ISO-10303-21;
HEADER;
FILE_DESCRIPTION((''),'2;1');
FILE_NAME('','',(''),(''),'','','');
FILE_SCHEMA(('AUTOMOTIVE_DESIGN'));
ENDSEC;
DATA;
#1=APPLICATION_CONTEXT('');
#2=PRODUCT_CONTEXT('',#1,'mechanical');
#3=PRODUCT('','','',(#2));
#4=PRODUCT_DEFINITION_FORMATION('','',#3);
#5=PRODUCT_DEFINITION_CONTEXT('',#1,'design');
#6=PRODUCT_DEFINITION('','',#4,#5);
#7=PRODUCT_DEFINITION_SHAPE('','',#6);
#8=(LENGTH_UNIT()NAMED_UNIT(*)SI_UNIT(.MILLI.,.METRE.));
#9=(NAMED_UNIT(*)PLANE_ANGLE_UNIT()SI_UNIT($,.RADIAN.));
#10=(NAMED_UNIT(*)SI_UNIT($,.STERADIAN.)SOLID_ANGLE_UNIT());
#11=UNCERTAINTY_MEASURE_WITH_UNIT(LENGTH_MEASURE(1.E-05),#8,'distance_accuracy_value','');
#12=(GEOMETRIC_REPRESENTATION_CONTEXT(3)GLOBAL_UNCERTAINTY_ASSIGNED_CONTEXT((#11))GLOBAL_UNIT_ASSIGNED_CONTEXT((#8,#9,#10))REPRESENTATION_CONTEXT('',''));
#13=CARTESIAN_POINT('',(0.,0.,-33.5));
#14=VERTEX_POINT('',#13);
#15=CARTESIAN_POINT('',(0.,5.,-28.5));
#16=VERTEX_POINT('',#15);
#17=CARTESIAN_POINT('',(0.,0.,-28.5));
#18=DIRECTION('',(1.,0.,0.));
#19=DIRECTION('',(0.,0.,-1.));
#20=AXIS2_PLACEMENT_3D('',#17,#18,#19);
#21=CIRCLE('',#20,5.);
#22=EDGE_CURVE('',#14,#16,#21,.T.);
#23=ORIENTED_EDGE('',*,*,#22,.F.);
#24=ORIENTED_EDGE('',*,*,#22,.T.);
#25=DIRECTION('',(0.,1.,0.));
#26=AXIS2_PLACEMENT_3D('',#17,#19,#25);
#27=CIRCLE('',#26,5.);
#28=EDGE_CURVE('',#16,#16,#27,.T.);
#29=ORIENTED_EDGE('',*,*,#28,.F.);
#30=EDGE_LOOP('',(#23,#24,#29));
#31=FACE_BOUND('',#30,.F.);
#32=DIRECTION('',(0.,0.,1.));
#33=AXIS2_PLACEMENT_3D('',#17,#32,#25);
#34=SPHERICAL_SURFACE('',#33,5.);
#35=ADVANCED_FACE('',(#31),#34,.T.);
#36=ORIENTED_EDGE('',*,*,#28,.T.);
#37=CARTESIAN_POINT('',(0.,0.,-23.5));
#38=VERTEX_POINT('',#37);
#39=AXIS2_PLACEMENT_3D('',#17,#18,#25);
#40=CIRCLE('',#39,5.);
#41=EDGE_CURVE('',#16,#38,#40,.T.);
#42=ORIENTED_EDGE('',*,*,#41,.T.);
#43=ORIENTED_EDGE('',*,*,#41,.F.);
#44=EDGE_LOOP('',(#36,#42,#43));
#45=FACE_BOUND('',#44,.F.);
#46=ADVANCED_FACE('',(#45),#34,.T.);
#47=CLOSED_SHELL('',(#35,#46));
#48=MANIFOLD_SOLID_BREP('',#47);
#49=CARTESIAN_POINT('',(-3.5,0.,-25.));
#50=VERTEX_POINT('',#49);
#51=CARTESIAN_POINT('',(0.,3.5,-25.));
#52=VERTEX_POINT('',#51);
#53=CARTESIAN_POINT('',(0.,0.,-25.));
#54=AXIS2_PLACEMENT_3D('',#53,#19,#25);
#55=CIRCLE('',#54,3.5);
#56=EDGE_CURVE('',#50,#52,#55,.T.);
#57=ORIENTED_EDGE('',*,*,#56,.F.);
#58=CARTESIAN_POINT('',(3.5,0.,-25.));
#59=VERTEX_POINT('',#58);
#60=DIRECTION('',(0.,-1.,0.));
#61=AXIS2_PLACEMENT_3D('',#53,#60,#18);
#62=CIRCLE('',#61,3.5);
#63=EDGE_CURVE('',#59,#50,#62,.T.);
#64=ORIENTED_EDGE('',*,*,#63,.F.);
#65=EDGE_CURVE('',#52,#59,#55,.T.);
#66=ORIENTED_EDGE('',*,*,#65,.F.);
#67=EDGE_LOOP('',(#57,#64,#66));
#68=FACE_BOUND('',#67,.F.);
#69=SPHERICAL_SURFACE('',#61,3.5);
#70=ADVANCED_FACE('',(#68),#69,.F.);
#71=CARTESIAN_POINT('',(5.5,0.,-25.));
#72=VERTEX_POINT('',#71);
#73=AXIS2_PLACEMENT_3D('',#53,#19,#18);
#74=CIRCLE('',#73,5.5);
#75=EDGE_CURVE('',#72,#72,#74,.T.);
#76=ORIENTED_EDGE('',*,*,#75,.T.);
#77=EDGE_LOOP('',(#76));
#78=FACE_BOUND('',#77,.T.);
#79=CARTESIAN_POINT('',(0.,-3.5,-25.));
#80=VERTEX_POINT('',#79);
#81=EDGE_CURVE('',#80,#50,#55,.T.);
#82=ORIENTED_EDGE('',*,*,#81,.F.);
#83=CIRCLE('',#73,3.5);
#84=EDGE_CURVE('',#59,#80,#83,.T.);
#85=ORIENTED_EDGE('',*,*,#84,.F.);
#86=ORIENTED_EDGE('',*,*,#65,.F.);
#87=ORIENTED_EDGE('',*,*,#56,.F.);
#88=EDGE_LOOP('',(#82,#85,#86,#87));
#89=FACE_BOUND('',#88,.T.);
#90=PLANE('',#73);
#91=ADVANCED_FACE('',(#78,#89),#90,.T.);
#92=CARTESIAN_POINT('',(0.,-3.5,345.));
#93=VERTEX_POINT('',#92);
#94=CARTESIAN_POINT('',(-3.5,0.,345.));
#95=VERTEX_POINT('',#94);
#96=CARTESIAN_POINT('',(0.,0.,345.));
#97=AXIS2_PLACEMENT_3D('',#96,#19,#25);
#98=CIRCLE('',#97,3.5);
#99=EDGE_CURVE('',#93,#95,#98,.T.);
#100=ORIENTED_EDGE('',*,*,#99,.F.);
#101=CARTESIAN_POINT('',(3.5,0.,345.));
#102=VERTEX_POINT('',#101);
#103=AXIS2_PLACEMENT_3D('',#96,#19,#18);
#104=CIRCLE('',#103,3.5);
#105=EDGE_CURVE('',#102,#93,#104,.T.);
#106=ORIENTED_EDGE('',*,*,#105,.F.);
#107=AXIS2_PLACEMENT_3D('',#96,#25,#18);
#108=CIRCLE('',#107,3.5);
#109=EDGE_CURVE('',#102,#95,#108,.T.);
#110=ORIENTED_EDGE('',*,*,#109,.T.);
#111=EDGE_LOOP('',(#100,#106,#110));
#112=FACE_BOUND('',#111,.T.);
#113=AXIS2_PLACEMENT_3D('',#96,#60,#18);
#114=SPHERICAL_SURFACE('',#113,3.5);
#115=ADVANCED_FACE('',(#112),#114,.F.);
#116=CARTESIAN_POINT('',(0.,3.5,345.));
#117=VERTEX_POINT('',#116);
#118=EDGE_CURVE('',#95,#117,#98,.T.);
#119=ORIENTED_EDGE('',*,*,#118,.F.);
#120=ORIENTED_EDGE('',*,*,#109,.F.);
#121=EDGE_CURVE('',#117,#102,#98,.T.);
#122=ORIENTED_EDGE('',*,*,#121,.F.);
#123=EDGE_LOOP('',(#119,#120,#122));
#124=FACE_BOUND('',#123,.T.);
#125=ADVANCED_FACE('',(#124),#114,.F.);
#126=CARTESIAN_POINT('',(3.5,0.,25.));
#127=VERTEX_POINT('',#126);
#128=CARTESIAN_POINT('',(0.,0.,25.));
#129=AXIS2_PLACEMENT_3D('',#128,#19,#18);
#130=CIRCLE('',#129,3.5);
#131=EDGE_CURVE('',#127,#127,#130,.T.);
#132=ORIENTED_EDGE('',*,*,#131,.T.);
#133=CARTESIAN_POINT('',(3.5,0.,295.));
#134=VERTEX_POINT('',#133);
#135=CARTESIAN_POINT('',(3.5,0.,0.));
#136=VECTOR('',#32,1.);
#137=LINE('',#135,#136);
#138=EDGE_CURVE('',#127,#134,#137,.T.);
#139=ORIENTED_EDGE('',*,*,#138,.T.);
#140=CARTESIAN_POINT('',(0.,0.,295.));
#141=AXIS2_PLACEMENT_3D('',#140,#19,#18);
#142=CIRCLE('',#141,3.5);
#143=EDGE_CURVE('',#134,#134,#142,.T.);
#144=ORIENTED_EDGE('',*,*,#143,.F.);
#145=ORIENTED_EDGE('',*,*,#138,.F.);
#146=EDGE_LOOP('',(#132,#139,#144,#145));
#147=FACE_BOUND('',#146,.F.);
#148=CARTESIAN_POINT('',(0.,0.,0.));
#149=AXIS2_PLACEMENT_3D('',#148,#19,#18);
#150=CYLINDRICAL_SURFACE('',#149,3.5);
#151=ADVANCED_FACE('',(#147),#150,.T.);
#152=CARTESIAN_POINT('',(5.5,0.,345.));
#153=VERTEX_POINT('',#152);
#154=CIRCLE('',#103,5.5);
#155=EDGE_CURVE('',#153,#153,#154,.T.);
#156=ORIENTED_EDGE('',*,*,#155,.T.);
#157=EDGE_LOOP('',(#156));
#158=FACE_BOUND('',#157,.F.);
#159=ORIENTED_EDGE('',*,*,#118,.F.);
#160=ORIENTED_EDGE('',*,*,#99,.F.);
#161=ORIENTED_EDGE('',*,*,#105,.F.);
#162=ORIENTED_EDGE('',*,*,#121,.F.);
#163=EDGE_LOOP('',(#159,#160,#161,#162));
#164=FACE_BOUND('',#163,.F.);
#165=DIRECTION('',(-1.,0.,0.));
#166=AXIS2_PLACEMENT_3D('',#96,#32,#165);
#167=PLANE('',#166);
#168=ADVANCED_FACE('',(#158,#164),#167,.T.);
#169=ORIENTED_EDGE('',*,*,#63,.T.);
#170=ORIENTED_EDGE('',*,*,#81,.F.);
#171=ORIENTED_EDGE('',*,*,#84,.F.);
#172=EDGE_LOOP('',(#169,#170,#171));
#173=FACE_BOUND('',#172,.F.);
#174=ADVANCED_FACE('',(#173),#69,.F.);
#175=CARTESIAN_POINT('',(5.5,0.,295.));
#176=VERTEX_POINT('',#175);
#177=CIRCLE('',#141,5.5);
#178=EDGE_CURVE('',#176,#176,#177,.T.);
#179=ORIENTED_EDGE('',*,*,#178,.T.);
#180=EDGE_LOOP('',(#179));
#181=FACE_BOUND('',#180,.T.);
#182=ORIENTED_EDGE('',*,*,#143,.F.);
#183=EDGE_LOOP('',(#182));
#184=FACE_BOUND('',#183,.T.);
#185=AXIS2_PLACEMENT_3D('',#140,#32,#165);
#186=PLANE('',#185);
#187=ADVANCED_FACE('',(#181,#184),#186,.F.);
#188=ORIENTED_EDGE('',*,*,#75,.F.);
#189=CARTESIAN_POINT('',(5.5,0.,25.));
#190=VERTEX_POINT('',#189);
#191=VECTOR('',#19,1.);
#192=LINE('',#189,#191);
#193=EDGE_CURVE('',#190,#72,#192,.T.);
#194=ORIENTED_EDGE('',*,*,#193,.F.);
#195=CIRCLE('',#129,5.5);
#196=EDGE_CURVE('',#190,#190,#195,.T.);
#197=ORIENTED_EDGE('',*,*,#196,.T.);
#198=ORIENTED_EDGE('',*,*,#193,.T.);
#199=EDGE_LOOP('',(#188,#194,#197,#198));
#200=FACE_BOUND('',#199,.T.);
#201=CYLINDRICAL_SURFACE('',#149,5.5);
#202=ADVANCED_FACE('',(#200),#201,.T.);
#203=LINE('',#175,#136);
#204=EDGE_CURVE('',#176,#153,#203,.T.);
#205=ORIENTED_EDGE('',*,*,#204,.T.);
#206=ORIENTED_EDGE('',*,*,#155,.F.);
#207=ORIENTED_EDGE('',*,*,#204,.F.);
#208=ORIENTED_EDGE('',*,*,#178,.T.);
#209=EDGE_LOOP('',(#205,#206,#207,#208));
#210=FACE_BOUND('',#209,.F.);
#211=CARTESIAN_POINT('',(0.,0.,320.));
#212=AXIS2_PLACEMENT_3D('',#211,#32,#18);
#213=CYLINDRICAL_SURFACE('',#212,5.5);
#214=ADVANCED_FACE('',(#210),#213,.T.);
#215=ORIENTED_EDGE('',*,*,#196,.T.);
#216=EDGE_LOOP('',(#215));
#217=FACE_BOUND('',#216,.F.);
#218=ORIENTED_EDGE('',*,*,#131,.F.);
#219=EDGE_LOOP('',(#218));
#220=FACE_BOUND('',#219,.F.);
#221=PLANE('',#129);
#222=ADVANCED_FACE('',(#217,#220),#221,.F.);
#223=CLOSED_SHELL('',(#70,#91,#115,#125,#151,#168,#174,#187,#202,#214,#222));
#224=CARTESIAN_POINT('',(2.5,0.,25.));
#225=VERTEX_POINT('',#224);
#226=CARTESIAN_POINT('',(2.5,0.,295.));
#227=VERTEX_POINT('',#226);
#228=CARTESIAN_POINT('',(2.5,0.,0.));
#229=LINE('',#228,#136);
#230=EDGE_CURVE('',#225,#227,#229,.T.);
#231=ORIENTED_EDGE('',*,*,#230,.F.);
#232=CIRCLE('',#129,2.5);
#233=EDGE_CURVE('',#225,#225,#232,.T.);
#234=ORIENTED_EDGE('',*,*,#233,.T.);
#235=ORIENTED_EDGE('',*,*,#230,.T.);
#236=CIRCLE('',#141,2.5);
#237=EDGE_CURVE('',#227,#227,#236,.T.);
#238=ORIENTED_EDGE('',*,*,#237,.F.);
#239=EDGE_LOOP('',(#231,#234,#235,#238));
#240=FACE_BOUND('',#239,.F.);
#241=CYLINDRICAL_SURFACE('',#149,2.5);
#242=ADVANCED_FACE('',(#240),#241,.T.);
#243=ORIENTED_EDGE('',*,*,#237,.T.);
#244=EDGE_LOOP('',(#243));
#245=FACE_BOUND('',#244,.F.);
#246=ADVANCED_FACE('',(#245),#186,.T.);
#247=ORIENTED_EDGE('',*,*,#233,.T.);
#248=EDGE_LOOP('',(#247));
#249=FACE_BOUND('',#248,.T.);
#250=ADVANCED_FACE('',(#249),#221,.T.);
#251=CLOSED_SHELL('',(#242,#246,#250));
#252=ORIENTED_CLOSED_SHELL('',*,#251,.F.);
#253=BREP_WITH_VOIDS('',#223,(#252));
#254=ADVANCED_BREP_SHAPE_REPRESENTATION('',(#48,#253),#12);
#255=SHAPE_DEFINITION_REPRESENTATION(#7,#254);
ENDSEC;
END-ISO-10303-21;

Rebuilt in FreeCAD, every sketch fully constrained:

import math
import FreeCAD as App
import Part
import Sketcher
from FreeCAD import Vector
Q = App.Units.Quantity

doc = App.newDocument("Part")
params = doc.addObject("Spreadsheet::Sheet", "Params")
for row, (alias, value) in enumerate([
    ("sketch1_diameter", "7 mm"),
    ("sketch1_diameter2", "5 mm"),
    ("pad1_length", "300 mm"),
    ("sketch2_diameter", "11 mm"),
    ("pad2_length", "25 mm"),
    ("pad2_length2", "25 mm"),
    ("sketch3_radius", "3.5 mm"),
    ("groove_angle", "360 deg"),
    ("sketch4_radius", "5 mm"),
    ("revolution_angle", "360 deg"),
], start=1):
    params.set(f"A{row}", alias)
    params.set(f"B{row}", "=" + value)
    params.setAlias(f"B{row}", alias)

body = doc.addObject("PartDesign::Body", "Body")

# Sketch on XY plane
sketch1 = body.newObject("Sketcher::SketchObject", "Sketch")
sketch1.AttachmentSupport = (doc.getObject("XY_Plane"), [""])
sketch1.MapMode = "FlatFace"
sketch1.addGeometry([
    Part.Circle(Vector(0, 0, 0), Vector(0, 0, 1), 3.5),
    Part.Circle(Vector(0, 0, 0), Vector(0, 0, 1), 2.5),
], False)
sketch1.addConstraint([
    Sketcher.Constraint("Coincident", 0, 3, -1, 1),
    Sketcher.Constraint("Coincident", 1, 3, -1, 1),
    Sketcher.Constraint("Diameter", 0, Q("7 mm")),
    Sketcher.Constraint("Diameter", 1, Q("5 mm")),
])
sketch1.setExpression("Constraints[2]", "Params.sketch1_diameter")
sketch1.setExpression("Constraints[3]", "Params.sketch1_diameter2")
pad1 = body.newObject("PartDesign::Pad", "Pad")
pad1.Profile = sketch1
pad1.setExpression("Length", "Params.pad1_length")

# Sketch on XY plane
sketch2 = body.newObject("Sketcher::SketchObject", "Sketch001")
sketch2.AttachmentSupport = (doc.getObject("XY_Plane"), [""])
sketch2.MapMode = "FlatFace"
sketch2.addGeometry(Part.Circle(Vector(0, 0, 0), Vector(0, 0, 1), 5.5), False)
sketch2.addConstraint([
    Sketcher.Constraint("Coincident", 0, 3, -1, 1),
    Sketcher.Constraint("Diameter", 0, Q("11 mm")),
])
sketch2.setExpression("Constraints[1]", "Params.sketch2_diameter")
pad2 = body.newObject("PartDesign::Pad", "Pad001")
pad2.Profile = sketch2
pad2.Type = "TwoLengths"
pad2.setExpression("Length", "Params.pad2_length")
pad2.setExpression("Length2", "Params.pad2_length2")
pad2.Reversed = True

# Sketch on XY plane
sketch3 = body.newObject("Sketcher::SketchObject", "Sketch002")
sketch3.AttachmentSupport = (doc.getObject("XY_Plane"), [""])
sketch3.MapMode = "FlatFace"
sketch3.AttachmentOffset = App.Placement(Vector(0, 0, -25), App.Rotation())
sketch3.addGeometry([
    Part.LineSegment(Vector(0, -3.5, 0), Vector(0, 3.5, 0)),
    Part.ArcOfCircle(Part.Circle(Vector(0, 0, 0), Vector(0, 0, 1), 3.5), math.radians(0), math.radians(90)),
    Part.ArcOfCircle(Part.Circle(Vector(0, 0, 0), Vector(0, 0, 1), 3.5), math.radians(-90), math.radians(0)),
], False)
sketch3.addConstraint([
    Sketcher.Constraint("Coincident", 0, 2, 1, 2),
    Sketcher.Constraint("Tangent", 1, 1, 2, 2),
    Sketcher.Constraint("Coincident", 2, 1, 0, 1),
    Sketcher.Constraint("Vertical", 0),
    Sketcher.Constraint("Coincident", 1, 3, -1, 1),
    Sketcher.Constraint("Equal", 1, 2),
    Sketcher.Constraint("PointOnObject", 0, 2, -2),
    Sketcher.Constraint("PointOnObject", 1, 1, -1),
    Sketcher.Constraint("Radius", 1, Q("3.5 mm")),
])
sketch3.setExpression("Constraints[8]", "Params.sketch3_radius")
groove = body.newObject("PartDesign::Groove", "Groove")
groove.Profile = sketch3
groove.ReferenceAxis = (sketch3, ["V_Axis"])
groove.setExpression("Angle", "Params.groove_angle")
body2 = doc.addObject("PartDesign::Body", "Body001")

# Sketch on YZ plane
sketch4 = body2.newObject("Sketcher::SketchObject", "Sketch003")
sketch4.AttachmentSupport = (doc.getObject("YZ_Plane001"), [""])
sketch4.MapMode = "FlatFace"
sketch4.addGeometry([
    Part.ArcOfCircle(Part.Circle(Vector(0, -28.5, 0), Vector(0, 0, 1), 5), math.radians(-90), math.radians(0)),
    Part.ArcOfCircle(Part.Circle(Vector(0, -28.5, 0), Vector(0, 0, 1), 5), math.radians(0), math.radians(90)),
    Part.LineSegment(Vector(0, -23.5, 0), Vector(0, -33.5, 0)),
], False)
sketch4.addConstraint([
    Sketcher.Constraint("Tangent", 0, 2, 1, 1),
    Sketcher.Constraint("Coincident", 1, 2, 2, 1),
    Sketcher.Constraint("Coincident", 2, 2, 0, 1),
    Sketcher.Constraint("Vertical", 2),
    Sketcher.Constraint("Equal", 0, 1),
    Sketcher.Constraint("PointOnObject", 0, 3, -2),
    Sketcher.Constraint("PointOnObject", 1, 2, -2),
    Sketcher.Constraint("Horizontal", 1, 3, 0, 2),
    Sketcher.Constraint("Radius", 0, Q("5 mm")),
    Sketcher.Constraint("DistanceY", 0, 3, -1, 1, Q("28.5 mm")),
])
sketch4.setExpression("Constraints[8]", "Params.sketch4_radius")
revolution = body2.newObject("PartDesign::Revolution", "Revolution")
revolution.Profile = sketch4
revolution.ReferenceAxis = (sketch4, ["V_Axis"])
revolution.setExpression("Angle", "Params.revolution_angle")
body3 = doc.addObject("PartDesign::Body", "Body002")
doc.recompute()

body3.BaseFeature = body
doc.recompute()

mirroring = doc.addObject("Part::Mirroring", "Mirroring")
mirroring.Source = body
mirroring.Base = Vector(0, 0, 160)
mirroring.Normal = Vector(0, 0, 1)
body4 = doc.addObject("PartDesign::Body", "Body003")
body4.BaseFeature = mirroring
boolean = body3.newObject("PartDesign::Boolean", "Boolean")
boolean.Type = "Fuse"
boolean.addObjects([body4])
doc.recompute()
mirroring.Visibility = False

doc.recompute()
